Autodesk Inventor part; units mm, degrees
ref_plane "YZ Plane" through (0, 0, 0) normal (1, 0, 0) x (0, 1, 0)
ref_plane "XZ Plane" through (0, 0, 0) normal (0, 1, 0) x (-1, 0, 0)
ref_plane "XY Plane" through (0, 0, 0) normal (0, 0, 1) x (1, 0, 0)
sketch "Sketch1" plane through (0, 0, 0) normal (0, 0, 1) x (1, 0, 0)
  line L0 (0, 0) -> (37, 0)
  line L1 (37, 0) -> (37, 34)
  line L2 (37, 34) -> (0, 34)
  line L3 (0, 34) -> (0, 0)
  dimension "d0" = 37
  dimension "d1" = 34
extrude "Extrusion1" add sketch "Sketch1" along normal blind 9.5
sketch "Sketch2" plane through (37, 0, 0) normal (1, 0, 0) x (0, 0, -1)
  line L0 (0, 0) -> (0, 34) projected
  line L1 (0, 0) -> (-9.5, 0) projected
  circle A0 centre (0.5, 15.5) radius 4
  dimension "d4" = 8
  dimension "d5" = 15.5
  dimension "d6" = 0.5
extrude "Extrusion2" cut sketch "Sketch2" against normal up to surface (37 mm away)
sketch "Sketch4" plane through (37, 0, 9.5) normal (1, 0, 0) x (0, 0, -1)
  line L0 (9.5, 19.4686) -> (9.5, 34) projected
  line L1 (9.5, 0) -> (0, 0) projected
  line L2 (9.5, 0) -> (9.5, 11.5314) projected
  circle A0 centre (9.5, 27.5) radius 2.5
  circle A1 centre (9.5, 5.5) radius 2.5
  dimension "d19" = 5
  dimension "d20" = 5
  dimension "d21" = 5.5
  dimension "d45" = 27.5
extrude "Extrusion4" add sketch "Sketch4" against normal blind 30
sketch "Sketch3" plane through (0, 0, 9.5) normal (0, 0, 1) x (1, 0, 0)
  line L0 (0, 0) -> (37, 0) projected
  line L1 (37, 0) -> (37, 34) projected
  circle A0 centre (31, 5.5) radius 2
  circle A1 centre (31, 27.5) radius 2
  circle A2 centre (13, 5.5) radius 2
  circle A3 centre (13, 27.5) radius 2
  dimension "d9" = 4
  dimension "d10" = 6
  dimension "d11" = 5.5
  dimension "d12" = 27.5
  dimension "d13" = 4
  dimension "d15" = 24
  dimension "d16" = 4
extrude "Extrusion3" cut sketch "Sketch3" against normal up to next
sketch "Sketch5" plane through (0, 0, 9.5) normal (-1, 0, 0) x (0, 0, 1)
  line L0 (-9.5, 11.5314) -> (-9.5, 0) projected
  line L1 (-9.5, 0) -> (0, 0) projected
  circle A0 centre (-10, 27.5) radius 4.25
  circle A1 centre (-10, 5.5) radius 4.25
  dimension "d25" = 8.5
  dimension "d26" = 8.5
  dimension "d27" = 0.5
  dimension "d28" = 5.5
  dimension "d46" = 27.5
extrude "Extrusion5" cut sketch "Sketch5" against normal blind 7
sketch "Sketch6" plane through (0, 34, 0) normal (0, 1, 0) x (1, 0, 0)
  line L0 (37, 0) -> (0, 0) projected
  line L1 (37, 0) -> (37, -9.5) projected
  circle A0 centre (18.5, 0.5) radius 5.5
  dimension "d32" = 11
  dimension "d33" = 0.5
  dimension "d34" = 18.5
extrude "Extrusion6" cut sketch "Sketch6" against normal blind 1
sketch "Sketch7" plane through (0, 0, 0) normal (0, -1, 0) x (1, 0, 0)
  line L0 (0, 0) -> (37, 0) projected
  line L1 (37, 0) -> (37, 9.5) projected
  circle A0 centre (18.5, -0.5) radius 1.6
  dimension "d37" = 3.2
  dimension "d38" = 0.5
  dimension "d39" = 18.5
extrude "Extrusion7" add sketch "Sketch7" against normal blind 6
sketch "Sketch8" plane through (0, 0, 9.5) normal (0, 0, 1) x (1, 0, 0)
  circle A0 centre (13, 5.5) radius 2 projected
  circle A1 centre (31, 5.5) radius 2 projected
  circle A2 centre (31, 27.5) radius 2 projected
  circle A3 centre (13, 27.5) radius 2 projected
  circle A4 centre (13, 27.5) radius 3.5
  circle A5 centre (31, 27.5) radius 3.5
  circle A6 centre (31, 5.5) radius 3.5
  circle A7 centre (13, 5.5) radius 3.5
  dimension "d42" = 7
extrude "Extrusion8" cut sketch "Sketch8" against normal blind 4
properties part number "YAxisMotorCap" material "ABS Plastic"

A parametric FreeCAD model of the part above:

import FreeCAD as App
import Part
import Sketcher

V = App.Vector


def add_polygon(sketch, points):
    """Adds a closed chain of lines whose ends are joined by coincident constraints."""
    first, n = sketch.GeometryCount, len(points)
    for a, b in zip(points, points[1:] + points[:1]):
        sketch.addGeometry(Part.LineSegment(App.Vector(*a, 0), App.Vector(*b, 0)), False)
    for i in range(n):
        sketch.addConstraint(Sketcher.Constraint("Coincident", first + i, 2, first + (i + 1) % n, 1))

doc = App.newDocument("Part")
body = doc.addObject("PartDesign::Body", "Body")

sketch1 = body.newObject("Sketcher::SketchObject", "Sketch")
sketch1.AttachmentSupport = (doc.getObject("XY_Plane"), [""])
sketch1.MapMode = "FlatFace"
add_polygon(sketch1, [(0, 34), (0, 0), (37, 0), (37, 34)])
sketch1.addConstraint([
    Sketcher.Constraint("Vertical", 0),
    Sketcher.Constraint("Horizontal", 1),
    Sketcher.Constraint("Vertical", 2),
    Sketcher.Constraint("Horizontal", 3),
    Sketcher.Constraint("Coincident", 0, 2, -1, 1),
    Sketcher.Constraint("DistanceX", 1, 1, 1, 2, 37.0),
    Sketcher.Constraint("DistanceY", 0, 2, 0, 1, 34.0),
])
pad1 = body.newObject("PartDesign::Pad", "Pad")
pad1.Profile = sketch1
pad1.Length = 9.5

sketch2 = body.newObject("Sketcher::SketchObject", "Sketch001")
sketch2.AttachmentSupport = (doc.getObject("YZ_Plane"), [""])
sketch2.MapMode = "FlatFace"
sketch2.AttachmentOffset = App.Placement(V(0, 0, 37), App.Rotation())
sketch2.addGeometry(Part.Circle(V(15.5, -0.5, 0), V(0, 0, 1), 4), False)
sketch2.addConstraint([
    Sketcher.Constraint("Diameter", 0, 8.0),
    Sketcher.Constraint("DistanceX", -1, 1, 0, 3, 15.5),
    Sketcher.Constraint("DistanceY", 0, 3, -1, 1, 0.5),
])
pocket1 = body.newObject("PartDesign::Pocket", "Pocket")
pocket1.Profile = sketch2
pocket1.Length = 37

sketch3 = body.newObject("Sketcher::SketchObject", "Sketch002")
sketch3.AttachmentSupport = (doc.getObject("YZ_Plane"), [""])
sketch3.MapMode = "FlatFace"
sketch3.AttachmentOffset = App.Placement(V(0, 0, 37), App.Rotation())
sketch3.addGeometry([
    Part.Circle(V(27.5, 0, 0), V(0, 0, 1), 2.5),
    Part.Circle(V(5.5, 0, 0), V(0, 0, 1), 2.5),
], False)
sketch3.addConstraint([
    Sketcher.Constraint("Equal", 0, 1),
    Sketcher.Constraint("PointOnObject", 0, 3, -1),
    Sketcher.Constraint("PointOnObject", 1, 3, -1),
    Sketcher.Constraint("Diameter", 0, 5.0),
    Sketcher.Constraint("DistanceX", -1, 1, 0, 3, 27.5),
    Sketcher.Constraint("DistanceX", -1, 1, 1, 3, 5.5),
])
pad2 = body.newObject("PartDesign::Pad", "Pad001")
pad2.Profile = sketch3
pad2.Length = 30
pad2.Reversed = True

sketch4 = body.newObject("Sketcher::SketchObject", "Sketch003")
sketch4.AttachmentSupport = (doc.getObject("XY_Plane"), [""])
sketch4.MapMode = "FlatFace"
sketch4.AttachmentOffset = App.Placement(V(0, 0, 9.5), App.Rotation())
sketch4.addGeometry([
    Part.Circle(V(31, 5.5, 0), V(0, 0, 1), 2),
    Part.Circle(V(31, 27.5, 0), V(0, 0, 1), 2),
    Part.Circle(V(13, 5.5, 0), V(0, 0, 1), 2),
    Part.Circle(V(13, 27.5, 0), V(0, 0, 1), 2),
], False)
sketch4.addConstraint([
    Sketcher.Constraint("Equal", 0, 1),
    Sketcher.Constraint("Equal", 1, 2),
    Sketcher.Constraint("Equal", 2, 3),
    Sketcher.Constraint("Horizontal", 0, 3, 2, 3),
    Sketcher.Constraint("Horizontal", 1, 3, 3, 3),
    Sketcher.Constraint("Vertical", 0, 3, 1, 3),
    Sketcher.Constraint("Vertical", 2, 3, 3, 3),
    Sketcher.Constraint("Diameter", 0, 4.0),
    Sketcher.Constraint("DistanceY", -1, 1, 0, 3, 5.5),
    Sketcher.Constraint("DistanceY", -1, 1, 1, 3, 27.5),
    Sketcher.Constraint("DistanceX", -1, 1, 0, 3, 31.0),
    Sketcher.Constraint("DistanceX", -1, 1, 2, 3, 13.0),
])
pocket2 = body.newObject("PartDesign::Pocket", "Pocket001")
pocket2.Profile = sketch4
pocket2.Length = 12

sketch5 = body.newObject("Sketcher::SketchObject", "Sketch004")
sketch5.AttachmentSupport = (doc.getObject("YZ_Plane"), [""])
sketch5.MapMode = "FlatFace"
sketch5.addGeometry([
    Part.Circle(V(5.5, -0.5, 0), V(0, 0, 1), 4.2),
    Part.Circle(V(27.5, -0.5, 0), V(0, 0, 1), 4.2),
], False)
sketch5.addConstraint([
    Sketcher.Constraint("Equal", 0, 1),
    Sketcher.Constraint("Horizontal", 0, 3, 1, 3),
    Sketcher.Constraint("Diameter", 0, 8.5),
    Sketcher.Constraint("DistanceX", -1, 1, 0, 3, 5.5),
    Sketcher.Constraint("DistanceY", 0, 3, -1, 1, 0.5),
    Sketcher.Constraint("DistanceX", -1, 1, 1, 3, 27.5),
])
pocket3 = body.newObject("PartDesign::Pocket", "Pocket002")
pocket3.Profile = sketch5
pocket3.Length = 7
pocket3.Reversed = True

sketch6 = body.newObject("Sketcher::SketchObject", "Sketch005")
sketch6.AttachmentSupport = (doc.getObject("XZ_Plane"), [""])
sketch6.MapMode = "FlatFace"
sketch6.AttachmentOffset = App.Placement(V(0, 0, -34), App.Rotation())
sketch6.addGeometry(Part.Circle(V(18, 0, 0), V(0, 0, 1), 6), False)
sketch6.addConstraint([
    Sketcher.Constraint("Diameter", 0, 11.0),
    Sketcher.Constraint("DistanceX", -1, 1, 0, 3, 18.5),
    Sketcher.Constraint("DistanceY", 0, 3, -1, 1, 0.5),
])
pocket4 = body.newObject("PartDesign::Pocket", "Pocket003")
pocket4.Profile = sketch6
pocket4.Length = 1
pocket4.Reversed = True

sketch7 = body.newObject("Sketcher::SketchObject", "Sketch006")
sketch7.AttachmentSupport = (doc.getObject("XZ_Plane"), [""])
sketch7.MapMode = "FlatFace"
sketch7.addGeometry(Part.Circle(V(18.5, -0.5, 0), V(0, 0, 1), 1.6), False)
sketch7.addConstraint([
    Sketcher.Constraint("Diameter", 0, 3.2),
    Sketcher.Constraint("DistanceX", -1, 1, 0, 3, 18.5),
    Sketcher.Constraint("DistanceY", 0, 3, -1, 1, 0.5),
])
pad3 = body.newObject("PartDesign::Pad", "Pad002")
pad3.Profile = sketch7
pad3.Length = 6
pad3.Reversed = True

sketch8 = body.newObject("Sketcher::SketchObject", "Sketch007")
sketch8.AttachmentSupport = (doc.getObject("XY_Plane"), [""])
sketch8.MapMode = "FlatFace"
sketch8.AttachmentOffset = App.Placement(V(0, 0, 9.5), App.Rotation())
sketch8.addGeometry([
    Part.Circle(V(13, 27.5, 0), V(0, 0, 1), 3.5),
    Part.Circle(V(13, 27.5, 0), V(0, 0, 1), 2),
    Part.Circle(V(31, 27.5, 0), V(0, 0, 1), 3.5),
    Part.Circle(V(31, 27.5, 0), V(0, 0, 1), 2),
    Part.Circle(V(31, 5.5, 0), V(0, 0, 1), 3.5),
    Part.Circle(V(31, 5.5, 0), V(0, 0, 1), 2),
    Part.Circle(V(13, 5.5, 0), V(0, 0, 1), 3.5),
    Part.Circle(V(13, 5.5, 0), V(0, 0, 1), 2),
], False)
sketch8.addConstraint([
    Sketcher.Constraint("Coincident", 1, 3, 0, 3),
    Sketcher.Constraint("Coincident", 3, 3, 2, 3),
    Sketcher.Constraint("Coincident", 5, 3, 4, 3),
    Sketcher.Constraint("Coincident", 7, 3, 6, 3),
    Sketcher.Constraint("Equal", 0, 2),
    Sketcher.Constraint("Equal", 1, 3),
    Sketcher.Constraint("Equal", 2, 4),
    Sketcher.Constraint("Equal", 3, 5),
    Sketcher.Constraint("Equal", 4, 6),
    Sketcher.Constraint("Equal", 5, 7),
    Sketcher.Constraint("Horizontal", 1, 3, 2, 3),
    Sketcher.Constraint("Horizontal", 5, 3, 6, 3),
    Sketcher.Constraint("Vertical", 3, 3, 4, 3),
    Sketcher.Constraint("Vertical", 1, 3, 6, 3),
    Sketcher.Constraint("Diameter", 0, 7.0),
    Sketcher.Constraint("Diameter", 1, 4.0),
    Sketcher.Constraint("DistanceX", -1, 1, 0, 3, 13.0),
    Sketcher.Constraint("DistanceX", -1, 1, 2, 3, 31.0),
    Sketcher.Constraint("DistanceY", 4, 3, 2, 3, 22.0),
    Sketcher.Constraint("DistanceY", -1, 1, 0, 3, 27.5),
])
pocket5 = body.newObject("PartDesign::Pocket", "Pocket004")
pocket5.Profile = sketch8
pocket5.Length = 4

doc.recompute()
